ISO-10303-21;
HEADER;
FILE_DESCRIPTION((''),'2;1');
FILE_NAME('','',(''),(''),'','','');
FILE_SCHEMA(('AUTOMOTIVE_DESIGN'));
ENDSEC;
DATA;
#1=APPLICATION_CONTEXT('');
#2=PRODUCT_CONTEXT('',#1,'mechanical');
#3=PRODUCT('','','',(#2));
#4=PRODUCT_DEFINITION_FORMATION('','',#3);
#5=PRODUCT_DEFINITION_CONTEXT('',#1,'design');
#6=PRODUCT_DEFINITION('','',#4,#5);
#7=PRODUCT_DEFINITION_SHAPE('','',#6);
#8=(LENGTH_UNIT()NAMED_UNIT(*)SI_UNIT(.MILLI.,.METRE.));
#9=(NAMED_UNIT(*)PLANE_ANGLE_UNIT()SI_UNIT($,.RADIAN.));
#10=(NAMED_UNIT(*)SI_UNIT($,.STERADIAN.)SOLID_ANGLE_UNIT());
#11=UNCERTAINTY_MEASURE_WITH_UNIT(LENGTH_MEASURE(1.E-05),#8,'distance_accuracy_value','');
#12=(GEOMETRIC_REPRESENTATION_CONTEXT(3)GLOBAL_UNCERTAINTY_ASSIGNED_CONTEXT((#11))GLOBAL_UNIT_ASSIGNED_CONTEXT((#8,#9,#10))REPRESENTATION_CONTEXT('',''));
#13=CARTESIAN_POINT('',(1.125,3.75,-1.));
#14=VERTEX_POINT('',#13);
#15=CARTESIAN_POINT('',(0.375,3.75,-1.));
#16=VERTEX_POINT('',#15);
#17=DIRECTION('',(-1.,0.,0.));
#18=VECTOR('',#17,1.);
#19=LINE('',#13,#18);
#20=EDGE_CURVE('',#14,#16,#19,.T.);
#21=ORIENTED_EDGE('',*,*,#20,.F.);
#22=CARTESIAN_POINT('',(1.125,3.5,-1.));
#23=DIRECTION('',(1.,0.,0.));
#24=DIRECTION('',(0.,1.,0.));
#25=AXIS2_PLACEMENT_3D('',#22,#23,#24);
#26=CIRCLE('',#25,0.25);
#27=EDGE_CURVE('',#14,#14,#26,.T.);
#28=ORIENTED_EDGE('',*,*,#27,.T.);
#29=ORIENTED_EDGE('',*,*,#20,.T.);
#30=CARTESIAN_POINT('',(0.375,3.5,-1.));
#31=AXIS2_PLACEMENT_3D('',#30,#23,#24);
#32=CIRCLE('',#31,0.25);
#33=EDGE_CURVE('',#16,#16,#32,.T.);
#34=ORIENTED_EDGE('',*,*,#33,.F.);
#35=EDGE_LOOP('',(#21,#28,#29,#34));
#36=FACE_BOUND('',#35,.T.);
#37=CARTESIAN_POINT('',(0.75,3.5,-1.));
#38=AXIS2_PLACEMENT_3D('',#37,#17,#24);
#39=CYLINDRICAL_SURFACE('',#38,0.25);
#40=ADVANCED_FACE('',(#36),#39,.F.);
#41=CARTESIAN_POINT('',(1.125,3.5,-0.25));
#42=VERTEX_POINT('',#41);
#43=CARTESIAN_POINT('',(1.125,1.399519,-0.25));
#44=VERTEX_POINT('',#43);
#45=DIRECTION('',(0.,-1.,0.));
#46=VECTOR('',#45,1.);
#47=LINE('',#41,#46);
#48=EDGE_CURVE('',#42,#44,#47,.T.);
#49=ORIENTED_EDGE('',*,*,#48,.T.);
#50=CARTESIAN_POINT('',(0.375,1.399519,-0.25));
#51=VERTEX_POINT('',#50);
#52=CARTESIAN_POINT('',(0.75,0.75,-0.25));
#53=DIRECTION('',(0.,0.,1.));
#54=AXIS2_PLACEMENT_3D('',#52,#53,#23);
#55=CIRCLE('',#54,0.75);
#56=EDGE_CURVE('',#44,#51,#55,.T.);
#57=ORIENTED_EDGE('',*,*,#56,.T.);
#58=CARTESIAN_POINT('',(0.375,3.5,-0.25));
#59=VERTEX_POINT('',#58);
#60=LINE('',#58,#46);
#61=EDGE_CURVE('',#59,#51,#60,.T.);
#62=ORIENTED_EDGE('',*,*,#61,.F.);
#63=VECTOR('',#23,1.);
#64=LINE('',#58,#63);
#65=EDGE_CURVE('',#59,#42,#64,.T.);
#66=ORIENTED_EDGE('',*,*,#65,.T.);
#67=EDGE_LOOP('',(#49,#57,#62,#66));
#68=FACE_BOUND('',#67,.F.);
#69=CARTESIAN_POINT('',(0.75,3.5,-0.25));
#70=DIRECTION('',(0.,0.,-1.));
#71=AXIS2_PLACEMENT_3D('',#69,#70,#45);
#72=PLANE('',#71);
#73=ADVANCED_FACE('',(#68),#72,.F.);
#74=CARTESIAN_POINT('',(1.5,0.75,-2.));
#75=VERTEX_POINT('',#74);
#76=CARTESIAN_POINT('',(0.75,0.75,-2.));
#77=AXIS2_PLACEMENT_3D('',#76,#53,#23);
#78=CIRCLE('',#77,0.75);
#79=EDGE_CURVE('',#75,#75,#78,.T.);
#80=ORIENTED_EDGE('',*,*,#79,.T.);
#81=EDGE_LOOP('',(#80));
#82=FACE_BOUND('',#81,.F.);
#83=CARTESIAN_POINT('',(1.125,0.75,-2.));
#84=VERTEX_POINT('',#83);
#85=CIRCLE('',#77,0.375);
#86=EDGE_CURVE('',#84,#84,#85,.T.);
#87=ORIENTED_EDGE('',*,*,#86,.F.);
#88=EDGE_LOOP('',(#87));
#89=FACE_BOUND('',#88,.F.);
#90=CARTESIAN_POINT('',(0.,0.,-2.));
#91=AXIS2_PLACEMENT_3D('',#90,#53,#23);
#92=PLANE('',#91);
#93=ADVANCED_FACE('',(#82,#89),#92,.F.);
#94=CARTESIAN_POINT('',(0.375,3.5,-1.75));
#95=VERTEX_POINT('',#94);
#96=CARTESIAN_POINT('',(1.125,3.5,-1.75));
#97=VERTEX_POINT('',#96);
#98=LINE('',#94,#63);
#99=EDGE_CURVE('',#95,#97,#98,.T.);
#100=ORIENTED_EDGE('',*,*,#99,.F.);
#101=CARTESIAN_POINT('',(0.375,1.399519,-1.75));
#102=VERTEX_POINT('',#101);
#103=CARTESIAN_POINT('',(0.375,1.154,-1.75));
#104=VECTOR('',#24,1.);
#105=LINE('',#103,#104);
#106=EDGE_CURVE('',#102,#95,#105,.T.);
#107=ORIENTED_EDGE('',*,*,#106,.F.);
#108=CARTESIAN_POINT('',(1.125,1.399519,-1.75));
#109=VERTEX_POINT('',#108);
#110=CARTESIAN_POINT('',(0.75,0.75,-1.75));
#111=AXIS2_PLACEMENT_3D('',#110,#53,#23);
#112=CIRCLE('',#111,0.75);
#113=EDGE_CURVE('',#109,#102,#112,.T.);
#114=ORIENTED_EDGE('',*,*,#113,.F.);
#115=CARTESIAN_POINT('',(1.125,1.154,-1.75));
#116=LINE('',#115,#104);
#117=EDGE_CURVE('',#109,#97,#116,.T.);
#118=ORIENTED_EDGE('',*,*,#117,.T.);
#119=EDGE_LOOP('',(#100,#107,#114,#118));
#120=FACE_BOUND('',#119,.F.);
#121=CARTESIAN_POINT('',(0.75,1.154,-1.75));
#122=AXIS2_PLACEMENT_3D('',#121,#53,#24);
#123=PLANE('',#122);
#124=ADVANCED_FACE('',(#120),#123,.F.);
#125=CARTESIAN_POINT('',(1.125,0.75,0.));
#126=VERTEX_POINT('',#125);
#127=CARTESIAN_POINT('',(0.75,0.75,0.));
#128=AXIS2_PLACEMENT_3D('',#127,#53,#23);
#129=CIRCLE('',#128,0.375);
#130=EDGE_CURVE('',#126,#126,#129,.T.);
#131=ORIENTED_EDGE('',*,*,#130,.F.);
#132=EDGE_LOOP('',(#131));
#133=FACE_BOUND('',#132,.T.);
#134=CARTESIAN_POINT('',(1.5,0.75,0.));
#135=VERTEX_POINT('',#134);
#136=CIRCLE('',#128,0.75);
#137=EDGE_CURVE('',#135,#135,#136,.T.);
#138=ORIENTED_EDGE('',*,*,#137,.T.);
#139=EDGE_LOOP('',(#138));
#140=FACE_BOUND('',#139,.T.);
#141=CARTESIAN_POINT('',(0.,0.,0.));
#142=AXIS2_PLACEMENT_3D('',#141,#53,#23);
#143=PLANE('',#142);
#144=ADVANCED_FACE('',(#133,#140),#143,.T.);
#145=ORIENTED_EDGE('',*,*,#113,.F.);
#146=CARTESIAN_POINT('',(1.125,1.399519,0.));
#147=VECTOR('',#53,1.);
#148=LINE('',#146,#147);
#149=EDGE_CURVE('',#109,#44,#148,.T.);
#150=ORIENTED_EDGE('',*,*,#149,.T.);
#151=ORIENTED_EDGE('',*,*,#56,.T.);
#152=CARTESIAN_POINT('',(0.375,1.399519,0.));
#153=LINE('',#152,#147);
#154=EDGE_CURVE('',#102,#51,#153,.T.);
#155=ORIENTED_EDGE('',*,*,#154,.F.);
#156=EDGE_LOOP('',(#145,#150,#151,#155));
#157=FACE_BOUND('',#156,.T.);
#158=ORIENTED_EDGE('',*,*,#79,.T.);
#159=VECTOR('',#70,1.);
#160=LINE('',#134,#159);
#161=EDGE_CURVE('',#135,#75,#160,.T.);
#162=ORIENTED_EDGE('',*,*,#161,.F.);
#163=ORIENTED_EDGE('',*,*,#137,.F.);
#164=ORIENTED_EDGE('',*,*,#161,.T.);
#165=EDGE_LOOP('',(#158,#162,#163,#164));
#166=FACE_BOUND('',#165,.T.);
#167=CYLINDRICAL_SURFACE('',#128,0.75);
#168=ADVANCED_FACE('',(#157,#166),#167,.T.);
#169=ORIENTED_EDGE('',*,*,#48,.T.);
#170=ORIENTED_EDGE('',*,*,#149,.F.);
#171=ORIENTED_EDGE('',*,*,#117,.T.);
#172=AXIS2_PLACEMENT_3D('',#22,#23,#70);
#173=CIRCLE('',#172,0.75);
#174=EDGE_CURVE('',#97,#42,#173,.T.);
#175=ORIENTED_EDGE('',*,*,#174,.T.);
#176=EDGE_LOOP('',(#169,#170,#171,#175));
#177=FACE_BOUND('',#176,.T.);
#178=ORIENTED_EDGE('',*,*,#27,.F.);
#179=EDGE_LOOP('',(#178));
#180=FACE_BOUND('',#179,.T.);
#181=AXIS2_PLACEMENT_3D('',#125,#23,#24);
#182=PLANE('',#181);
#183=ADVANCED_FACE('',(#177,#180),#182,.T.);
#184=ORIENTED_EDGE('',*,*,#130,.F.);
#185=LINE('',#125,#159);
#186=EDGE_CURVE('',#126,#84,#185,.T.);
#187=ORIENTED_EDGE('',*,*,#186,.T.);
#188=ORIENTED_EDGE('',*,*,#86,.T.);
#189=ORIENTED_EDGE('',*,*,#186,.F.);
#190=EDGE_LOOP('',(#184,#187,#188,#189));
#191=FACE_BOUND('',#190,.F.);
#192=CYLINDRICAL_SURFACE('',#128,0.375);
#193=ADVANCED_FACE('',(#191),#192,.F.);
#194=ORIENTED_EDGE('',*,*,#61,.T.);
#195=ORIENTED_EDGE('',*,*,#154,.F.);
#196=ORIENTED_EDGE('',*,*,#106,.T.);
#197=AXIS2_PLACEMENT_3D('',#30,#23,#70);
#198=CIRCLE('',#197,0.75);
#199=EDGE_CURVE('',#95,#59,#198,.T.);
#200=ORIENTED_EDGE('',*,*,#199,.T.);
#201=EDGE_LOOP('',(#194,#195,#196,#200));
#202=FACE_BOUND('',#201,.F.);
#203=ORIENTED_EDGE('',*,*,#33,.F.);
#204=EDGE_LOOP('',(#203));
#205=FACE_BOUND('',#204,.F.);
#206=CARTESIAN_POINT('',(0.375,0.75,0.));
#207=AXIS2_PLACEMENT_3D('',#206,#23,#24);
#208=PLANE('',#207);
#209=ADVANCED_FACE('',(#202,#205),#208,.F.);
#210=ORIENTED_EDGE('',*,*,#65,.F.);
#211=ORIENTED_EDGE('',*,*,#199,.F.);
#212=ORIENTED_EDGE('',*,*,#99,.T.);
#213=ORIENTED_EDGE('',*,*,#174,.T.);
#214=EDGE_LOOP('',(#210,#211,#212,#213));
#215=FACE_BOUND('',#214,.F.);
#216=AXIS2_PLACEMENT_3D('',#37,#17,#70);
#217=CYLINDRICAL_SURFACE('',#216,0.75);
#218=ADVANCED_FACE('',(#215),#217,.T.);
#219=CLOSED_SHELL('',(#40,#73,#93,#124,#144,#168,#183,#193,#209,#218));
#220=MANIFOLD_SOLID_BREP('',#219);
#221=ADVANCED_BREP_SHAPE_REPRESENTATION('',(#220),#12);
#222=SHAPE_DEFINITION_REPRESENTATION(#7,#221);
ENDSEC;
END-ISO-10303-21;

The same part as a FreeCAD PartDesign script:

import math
import FreeCAD as App
import Part
import Sketcher
Q = App.Units.Quantity

doc = App.newDocument("Part")
params = doc.addObject("Spreadsheet::Sheet", "Params")
for row, (alias, value) in enumerate([
    ("sketch1_diameter", "1.5 mm"),
    ("sketch1_diameter2", "0.75 mm"),
    ("pad1_length", "2 mm"),
    ("sketch2_diameter", "0.5 mm"),
    ("sketch2_radius", "0.75 mm"),
    ("pad2_length", "0.75 mm"),
], start=1):
    params.set(f"A{row}", alias)
    params.set(f"B{row}", "=" + value)
    params.setAlias(f"B{row}", alias)

body = doc.addObject("PartDesign::Body", "Body")

# Sketch on XY plane
sketch1 = doc.addObject("Sketcher::SketchObject", "Sketch")
body.addObject(sketch1)
sketch1.AttachmentSupport = (doc.XY_Plane, [""])
sketch1.MapMode = "FlatFace"
sketch1.addGeometry([
    Part.Circle(App.Vector(0.75, 0.75, 0), App.Vector(0, 0, 1), 0.75),
    Part.Circle(App.Vector(0.75, 0.75, 0), App.Vector(0, 0, 1), 0.38),
], False)
sketch1.addConstraint([
    Sketcher.Constraint("Coincident", 1, 3, 0, 3),
    Sketcher.Constraint("Diameter", 0, Q("1.5 mm")),
    Sketcher.Constraint("Diameter", 1, Q("0.75 mm")),
    Sketcher.Constraint("DistanceX", -1, 1, 0, 3, Q("0.75 mm")),
    Sketcher.Constraint("DistanceY", -1, 1, 0, 3, Q("0.75 mm")),
])
sketch1.setExpression("Constraints[1]", "Params.sketch1_diameter")
sketch1.setExpression("Constraints[2]", "Params.sketch1_diameter2")
pad1 = doc.addObject("PartDesign::Pad", "Pad")
body.addObject(pad1)
pad1.Profile = sketch1
pad1.setExpression("Length", "Params.pad1_length")
pad1.Reversed = True

# Sketch on YZ plane
sketch2 = doc.addObject("Sketcher::SketchObject", "Sketch001")
body.addObject(sketch2)
sketch2.AttachmentSupport = (doc.YZ_Plane, [""])
sketch2.MapMode = "FlatFace"
sketch2.AttachmentOffset = App.Placement(App.Vector(0, 0, 0.75), App.Rotation())
sketch2.addGeometry([
    Part.LineSegment(App.Vector(1.15, -1.75, 0), App.Vector(3.5, -1.75, 0)),  # 0
    Part.ArcOfCircle(Part.Circle(App.Vector(3.5, -1, 0), App.Vector(0, 0, 1), 0.75), math.radians(-90), math.radians(90)),  # 1
    Part.LineSegment(App.Vector(3.5, -0.25, 0), App.Vector(1.15, -0.25, 0)),  # 2
    Part.LineSegment(App.Vector(1.15, -0.25, 0), App.Vector(1.15, -1.75, 0)),  # 3
    Part.Circle(App.Vector(3.5, -1, 0), App.Vector(0, 0, 1), 0.25),  # 4
], False)
sketch2.addConstraint([
    Sketcher.Constraint("Tangent", 0, 2, 1, 1),
    Sketcher.Constraint("Tangent", 1, 2, 2, 1),
    Sketcher.Constraint("Coincident", 2, 2, 3, 1),
    Sketcher.Constraint("Coincident", 3, 2, 0, 1),
    Sketcher.Constraint("Horizontal", 0),
    Sketcher.Constraint("Horizontal", 2),
    Sketcher.Constraint("Vertical", 3),
    Sketcher.Constraint("Coincident", 4, 3, 1, 3),
    Sketcher.Constraint("Diameter", 4, Q("0.5 mm")),
    Sketcher.Constraint("Radius", 1, Q("0.75 mm")),
    Sketcher.Constraint("DistanceY", 1, 3, -1, 1, Q("1 mm")),
    Sketcher.Constraint("DistanceX", -1, 1, 1, 3, Q("3.5 mm")),
    Sketcher.Constraint("DistanceX", 0, 1, 0, 2, Q("2.346 mm")),
])
sketch2.setExpression("Constraints[8]", "Params.sketch2_diameter")
sketch2.setExpression("Constraints[9]", "Params.sketch2_radius")
pad2 = doc.addObject("PartDesign::Pad", "Pad001")
body.addObject(pad2)
pad2.Profile = sketch2
pad2.setExpression("Length", "Params.pad2_length")
pad2.Midplane = True

doc.recompute()
